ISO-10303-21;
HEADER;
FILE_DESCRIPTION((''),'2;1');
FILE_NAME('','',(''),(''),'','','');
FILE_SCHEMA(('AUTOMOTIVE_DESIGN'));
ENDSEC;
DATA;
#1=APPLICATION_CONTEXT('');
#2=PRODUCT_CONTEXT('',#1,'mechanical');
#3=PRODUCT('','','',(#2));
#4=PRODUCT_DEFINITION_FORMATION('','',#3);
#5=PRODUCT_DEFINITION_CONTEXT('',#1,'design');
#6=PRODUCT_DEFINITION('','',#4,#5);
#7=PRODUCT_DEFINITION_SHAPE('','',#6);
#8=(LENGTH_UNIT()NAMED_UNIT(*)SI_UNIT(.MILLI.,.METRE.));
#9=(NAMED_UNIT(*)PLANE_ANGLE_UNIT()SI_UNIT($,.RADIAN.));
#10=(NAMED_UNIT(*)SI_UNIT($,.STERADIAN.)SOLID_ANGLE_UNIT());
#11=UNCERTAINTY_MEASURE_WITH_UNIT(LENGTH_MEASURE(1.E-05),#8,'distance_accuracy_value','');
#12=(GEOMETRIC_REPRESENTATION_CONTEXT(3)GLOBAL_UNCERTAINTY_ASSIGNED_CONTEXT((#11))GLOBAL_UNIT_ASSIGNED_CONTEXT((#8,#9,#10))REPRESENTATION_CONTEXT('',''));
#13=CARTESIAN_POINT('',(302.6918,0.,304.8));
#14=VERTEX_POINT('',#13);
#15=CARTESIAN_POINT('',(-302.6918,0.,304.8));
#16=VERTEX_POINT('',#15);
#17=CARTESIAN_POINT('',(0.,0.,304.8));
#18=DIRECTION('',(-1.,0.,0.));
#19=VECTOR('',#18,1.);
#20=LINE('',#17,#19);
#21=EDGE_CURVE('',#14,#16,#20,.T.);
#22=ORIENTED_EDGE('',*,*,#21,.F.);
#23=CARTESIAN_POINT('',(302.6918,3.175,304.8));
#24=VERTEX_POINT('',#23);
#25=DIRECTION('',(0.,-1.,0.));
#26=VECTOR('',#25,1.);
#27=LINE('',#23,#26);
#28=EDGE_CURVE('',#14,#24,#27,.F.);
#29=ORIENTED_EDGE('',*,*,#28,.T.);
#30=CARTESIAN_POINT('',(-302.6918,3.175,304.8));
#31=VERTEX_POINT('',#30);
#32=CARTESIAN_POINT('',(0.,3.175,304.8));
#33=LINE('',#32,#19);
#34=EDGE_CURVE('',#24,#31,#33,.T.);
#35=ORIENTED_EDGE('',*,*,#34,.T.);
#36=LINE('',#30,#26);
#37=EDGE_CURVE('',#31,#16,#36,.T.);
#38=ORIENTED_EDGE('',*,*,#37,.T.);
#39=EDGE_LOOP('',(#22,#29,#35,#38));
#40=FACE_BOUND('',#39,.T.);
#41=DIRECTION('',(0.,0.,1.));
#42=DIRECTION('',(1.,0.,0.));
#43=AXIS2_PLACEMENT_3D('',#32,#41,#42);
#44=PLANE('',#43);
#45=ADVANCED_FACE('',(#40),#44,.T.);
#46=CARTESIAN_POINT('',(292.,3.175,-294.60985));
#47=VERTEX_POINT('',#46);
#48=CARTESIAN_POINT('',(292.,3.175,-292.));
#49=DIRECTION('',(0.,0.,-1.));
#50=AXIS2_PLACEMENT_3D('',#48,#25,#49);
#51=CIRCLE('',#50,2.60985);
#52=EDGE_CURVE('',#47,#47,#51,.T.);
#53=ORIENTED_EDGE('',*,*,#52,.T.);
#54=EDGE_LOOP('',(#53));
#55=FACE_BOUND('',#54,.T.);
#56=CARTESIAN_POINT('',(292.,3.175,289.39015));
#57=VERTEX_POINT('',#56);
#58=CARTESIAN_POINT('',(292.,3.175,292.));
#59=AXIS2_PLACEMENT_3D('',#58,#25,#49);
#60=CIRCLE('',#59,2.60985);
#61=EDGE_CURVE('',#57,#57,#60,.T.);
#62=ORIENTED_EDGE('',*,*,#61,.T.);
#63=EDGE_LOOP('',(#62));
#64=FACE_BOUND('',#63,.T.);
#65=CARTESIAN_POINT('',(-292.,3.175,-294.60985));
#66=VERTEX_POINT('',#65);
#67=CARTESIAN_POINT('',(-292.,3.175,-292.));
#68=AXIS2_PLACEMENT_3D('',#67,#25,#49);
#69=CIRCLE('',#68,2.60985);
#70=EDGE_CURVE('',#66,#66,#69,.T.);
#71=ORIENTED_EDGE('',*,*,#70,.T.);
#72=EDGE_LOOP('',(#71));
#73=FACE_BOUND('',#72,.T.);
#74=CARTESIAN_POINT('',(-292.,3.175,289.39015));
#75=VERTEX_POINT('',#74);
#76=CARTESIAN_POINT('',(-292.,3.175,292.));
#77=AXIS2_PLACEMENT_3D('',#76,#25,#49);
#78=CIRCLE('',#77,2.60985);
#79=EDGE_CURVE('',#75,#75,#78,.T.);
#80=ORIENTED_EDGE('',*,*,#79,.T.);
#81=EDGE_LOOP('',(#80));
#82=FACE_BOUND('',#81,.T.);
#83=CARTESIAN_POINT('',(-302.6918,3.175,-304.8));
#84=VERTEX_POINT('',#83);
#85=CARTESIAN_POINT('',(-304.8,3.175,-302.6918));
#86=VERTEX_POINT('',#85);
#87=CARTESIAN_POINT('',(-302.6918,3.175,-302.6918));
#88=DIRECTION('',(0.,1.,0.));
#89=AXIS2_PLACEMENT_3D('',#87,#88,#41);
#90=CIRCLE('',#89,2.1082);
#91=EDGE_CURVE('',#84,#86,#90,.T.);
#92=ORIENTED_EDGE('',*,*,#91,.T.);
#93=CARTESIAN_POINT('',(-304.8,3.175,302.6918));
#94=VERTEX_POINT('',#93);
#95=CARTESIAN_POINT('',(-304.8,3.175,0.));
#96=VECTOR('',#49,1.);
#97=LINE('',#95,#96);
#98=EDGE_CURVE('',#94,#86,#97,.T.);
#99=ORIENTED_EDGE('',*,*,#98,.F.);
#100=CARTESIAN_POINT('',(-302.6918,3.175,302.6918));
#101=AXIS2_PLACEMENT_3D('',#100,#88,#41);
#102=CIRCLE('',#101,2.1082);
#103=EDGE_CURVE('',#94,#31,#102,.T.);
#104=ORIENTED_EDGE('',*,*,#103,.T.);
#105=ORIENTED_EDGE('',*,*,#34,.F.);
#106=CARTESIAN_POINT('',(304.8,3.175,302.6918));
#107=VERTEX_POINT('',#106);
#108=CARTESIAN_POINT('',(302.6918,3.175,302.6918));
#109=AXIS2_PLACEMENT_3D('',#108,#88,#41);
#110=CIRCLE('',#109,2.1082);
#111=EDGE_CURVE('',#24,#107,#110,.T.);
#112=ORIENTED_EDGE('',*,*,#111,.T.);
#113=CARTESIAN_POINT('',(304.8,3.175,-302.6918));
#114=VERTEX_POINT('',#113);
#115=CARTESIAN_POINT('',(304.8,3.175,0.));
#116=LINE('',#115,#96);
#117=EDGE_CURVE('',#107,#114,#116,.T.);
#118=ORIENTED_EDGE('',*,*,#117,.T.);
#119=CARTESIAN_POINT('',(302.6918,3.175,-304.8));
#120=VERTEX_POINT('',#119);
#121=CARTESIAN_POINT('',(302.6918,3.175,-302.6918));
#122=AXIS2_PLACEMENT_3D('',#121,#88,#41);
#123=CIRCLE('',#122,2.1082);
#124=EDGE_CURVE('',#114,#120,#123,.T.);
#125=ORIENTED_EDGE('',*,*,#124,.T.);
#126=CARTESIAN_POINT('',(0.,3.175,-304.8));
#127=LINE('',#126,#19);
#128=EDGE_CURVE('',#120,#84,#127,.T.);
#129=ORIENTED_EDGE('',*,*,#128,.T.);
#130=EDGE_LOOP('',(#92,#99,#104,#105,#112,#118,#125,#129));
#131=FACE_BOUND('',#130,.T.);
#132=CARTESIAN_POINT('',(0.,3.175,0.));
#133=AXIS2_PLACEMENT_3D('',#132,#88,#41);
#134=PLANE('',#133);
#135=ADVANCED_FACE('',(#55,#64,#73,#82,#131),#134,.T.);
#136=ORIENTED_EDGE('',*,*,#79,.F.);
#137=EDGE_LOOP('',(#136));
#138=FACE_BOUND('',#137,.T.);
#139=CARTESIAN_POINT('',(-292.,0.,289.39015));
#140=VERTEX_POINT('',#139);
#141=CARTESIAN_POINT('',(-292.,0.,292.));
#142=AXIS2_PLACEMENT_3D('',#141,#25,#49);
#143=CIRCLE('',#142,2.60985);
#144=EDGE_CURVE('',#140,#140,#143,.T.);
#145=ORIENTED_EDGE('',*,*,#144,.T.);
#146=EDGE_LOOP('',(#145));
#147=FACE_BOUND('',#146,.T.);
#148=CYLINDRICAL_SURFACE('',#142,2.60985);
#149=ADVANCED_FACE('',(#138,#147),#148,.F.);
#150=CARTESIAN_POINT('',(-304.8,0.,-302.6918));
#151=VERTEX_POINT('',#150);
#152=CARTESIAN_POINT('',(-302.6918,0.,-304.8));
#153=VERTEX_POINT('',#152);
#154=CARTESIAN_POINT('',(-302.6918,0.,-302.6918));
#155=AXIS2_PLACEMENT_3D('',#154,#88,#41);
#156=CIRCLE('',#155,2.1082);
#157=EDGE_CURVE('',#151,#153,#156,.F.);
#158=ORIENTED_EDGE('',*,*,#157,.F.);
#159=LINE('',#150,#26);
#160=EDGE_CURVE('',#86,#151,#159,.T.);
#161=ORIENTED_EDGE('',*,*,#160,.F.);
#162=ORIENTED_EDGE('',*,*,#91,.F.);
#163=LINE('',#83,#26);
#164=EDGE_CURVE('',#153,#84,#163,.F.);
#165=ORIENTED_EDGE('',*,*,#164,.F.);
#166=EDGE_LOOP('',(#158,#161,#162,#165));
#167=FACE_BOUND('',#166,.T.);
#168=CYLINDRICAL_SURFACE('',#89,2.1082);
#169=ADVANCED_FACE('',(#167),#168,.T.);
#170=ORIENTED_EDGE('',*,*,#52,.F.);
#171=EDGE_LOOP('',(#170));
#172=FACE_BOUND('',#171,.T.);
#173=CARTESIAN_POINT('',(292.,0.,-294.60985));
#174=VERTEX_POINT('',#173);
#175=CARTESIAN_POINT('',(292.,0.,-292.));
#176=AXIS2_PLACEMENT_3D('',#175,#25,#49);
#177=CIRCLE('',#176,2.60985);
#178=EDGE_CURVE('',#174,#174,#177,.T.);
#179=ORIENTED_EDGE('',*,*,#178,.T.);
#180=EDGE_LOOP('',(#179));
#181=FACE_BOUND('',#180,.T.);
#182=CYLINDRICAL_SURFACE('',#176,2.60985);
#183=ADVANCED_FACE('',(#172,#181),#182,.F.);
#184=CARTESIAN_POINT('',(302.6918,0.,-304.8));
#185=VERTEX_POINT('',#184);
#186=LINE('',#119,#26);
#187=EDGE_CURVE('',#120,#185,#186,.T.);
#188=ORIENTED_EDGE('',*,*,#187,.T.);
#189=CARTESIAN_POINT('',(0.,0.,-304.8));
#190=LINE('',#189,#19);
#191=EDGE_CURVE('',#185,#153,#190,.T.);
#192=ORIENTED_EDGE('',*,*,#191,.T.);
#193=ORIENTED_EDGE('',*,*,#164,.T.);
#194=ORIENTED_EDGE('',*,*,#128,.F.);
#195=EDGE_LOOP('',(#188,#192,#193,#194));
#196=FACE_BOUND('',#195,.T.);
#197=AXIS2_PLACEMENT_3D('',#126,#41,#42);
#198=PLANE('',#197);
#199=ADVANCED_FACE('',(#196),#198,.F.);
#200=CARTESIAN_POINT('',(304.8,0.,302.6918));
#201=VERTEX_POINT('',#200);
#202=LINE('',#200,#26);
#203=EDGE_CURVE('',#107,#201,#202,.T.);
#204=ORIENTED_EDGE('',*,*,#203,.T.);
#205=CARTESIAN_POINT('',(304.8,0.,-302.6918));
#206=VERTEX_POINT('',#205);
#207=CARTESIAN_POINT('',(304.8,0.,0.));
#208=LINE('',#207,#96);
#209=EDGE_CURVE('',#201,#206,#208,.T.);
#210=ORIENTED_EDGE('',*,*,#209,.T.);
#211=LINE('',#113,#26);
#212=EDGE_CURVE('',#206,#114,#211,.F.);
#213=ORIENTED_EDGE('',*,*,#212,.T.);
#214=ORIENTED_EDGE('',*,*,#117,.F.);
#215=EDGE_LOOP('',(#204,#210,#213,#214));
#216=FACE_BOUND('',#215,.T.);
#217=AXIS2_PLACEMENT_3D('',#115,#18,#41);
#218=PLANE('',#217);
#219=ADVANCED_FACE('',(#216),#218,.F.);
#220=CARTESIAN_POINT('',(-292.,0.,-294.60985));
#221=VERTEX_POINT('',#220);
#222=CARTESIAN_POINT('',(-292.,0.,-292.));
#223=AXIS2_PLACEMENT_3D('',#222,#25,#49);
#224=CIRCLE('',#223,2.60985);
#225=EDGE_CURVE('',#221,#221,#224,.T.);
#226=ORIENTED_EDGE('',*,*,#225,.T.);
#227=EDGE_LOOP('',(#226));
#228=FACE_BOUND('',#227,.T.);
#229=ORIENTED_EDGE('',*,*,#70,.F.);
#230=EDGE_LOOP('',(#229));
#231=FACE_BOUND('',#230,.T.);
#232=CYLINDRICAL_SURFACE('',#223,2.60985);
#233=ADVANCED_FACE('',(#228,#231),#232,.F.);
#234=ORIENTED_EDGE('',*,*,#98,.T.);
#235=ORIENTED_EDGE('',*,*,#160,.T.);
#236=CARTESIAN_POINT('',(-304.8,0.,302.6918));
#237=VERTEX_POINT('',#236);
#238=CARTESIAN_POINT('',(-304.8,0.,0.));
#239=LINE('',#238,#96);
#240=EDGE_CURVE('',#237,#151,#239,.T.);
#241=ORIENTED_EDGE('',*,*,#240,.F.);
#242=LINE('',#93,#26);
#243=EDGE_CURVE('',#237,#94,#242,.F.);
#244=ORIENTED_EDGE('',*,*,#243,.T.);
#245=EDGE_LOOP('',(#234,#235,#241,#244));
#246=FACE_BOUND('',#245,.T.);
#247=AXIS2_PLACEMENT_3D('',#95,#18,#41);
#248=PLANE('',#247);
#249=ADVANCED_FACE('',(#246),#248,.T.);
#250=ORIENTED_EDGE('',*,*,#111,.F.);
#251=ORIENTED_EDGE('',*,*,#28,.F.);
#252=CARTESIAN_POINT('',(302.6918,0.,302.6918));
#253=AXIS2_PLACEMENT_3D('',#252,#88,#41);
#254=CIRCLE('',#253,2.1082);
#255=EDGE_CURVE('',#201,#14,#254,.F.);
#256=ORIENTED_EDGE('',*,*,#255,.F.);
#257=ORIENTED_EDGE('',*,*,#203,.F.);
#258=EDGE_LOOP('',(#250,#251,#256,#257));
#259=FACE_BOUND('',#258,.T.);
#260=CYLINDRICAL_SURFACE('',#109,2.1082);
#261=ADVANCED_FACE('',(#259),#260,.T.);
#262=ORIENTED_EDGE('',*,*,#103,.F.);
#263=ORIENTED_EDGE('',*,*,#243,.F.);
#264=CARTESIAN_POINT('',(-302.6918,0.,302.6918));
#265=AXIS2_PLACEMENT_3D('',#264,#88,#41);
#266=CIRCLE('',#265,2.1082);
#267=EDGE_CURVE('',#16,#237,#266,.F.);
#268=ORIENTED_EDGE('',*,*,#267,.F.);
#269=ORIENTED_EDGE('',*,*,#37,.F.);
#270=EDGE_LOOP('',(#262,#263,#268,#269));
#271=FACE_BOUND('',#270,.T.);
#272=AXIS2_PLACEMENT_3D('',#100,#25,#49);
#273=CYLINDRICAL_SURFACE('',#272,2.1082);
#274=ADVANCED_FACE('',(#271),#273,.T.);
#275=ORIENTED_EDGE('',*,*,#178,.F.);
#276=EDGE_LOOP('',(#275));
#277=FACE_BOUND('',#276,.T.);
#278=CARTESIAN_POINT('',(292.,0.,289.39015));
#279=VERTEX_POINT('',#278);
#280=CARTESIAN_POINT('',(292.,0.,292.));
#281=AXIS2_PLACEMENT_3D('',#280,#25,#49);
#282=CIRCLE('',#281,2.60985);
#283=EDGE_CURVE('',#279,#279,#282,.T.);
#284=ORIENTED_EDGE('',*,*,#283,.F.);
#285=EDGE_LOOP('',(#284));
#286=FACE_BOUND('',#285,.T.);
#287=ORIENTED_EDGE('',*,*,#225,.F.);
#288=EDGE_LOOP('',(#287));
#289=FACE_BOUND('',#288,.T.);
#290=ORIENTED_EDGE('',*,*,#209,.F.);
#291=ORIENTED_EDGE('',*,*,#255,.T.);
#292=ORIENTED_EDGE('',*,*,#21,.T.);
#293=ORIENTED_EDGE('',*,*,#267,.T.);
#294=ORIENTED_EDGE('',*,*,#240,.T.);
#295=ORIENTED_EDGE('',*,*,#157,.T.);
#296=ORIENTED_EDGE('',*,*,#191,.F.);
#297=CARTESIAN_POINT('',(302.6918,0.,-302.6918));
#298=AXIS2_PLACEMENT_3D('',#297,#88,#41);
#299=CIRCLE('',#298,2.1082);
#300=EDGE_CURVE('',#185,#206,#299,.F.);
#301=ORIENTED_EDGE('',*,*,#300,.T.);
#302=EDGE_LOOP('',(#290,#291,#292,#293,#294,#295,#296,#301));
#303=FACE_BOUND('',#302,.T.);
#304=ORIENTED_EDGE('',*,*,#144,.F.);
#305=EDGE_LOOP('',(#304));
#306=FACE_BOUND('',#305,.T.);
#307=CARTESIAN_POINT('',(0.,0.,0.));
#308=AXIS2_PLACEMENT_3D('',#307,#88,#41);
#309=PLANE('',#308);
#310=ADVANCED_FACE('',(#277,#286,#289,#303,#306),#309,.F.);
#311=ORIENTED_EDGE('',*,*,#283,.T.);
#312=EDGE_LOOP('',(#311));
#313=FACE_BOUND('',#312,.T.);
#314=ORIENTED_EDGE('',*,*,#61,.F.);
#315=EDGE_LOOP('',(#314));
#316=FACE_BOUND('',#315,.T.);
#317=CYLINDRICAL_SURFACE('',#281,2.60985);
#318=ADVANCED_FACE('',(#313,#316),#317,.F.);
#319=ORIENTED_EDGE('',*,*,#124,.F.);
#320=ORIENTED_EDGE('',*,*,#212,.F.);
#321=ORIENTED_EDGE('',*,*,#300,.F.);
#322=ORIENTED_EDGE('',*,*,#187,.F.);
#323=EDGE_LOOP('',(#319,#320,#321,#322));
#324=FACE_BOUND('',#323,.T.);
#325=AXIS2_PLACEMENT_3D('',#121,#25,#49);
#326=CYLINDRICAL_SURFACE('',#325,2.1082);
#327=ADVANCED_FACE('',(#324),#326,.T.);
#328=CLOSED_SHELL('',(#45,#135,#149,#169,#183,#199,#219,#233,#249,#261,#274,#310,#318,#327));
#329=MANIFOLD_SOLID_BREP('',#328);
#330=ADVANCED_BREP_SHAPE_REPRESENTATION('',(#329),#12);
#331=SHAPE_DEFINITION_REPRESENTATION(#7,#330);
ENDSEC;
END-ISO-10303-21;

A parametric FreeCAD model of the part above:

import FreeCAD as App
import Part
import Sketcher
Q = App.Units.Quantity


def edges_at(feature, points):
    """Names of the edges that pass closest to the given points."""
    edges = feature.Shape.Edges
    near = lambda p: min(range(len(edges)), key=lambda i: edges[i].distToShape(Part.Vertex(*p))[0])
    return sorted({f"Edge{near(p) + 1}" for p in points})


def add_polygon(sketch, points):
    """Adds a closed chain of lines whose ends are joined by coincident constraints."""
    first, n = sketch.GeometryCount, len(points)
    for a, b in zip(points, points[1:] + points[:1]):
        sketch.addGeometry(Part.LineSegment(App.Vector(*a, 0), App.Vector(*b, 0)), False)
    for i in range(n):
        sketch.addConstraint(Sketcher.Constraint("Coincident", first + i, 2, first + (i + 1) % n, 1))

doc = App.newDocument("Part")
body = doc.addObject("PartDesign::Body", "Body")

sketch1 = body.newObject("Sketcher::SketchObject", "Sketch")
sketch1.AttachmentSupport = (doc.getObject("XZ_Plane"), [""])
sketch1.MapMode = "FlatFace"
add_polygon(sketch1, [(-305, -305), (-305, 305), (305, 305), (305, -305)])
sketch1.addConstraint(Sketcher.Constraint("Vertical", 0))
sketch1.addConstraint(Sketcher.Constraint("Horizontal", 1))
sketch1.addConstraint(Sketcher.Constraint("Vertical", 2))
sketch1.addConstraint(Sketcher.Constraint("Horizontal", 3))
sketch1.addConstraint(Sketcher.Constraint("Symmetric", 0, 2, 2, 2, -1, 1))
sketch1.addConstraint(Sketcher.Constraint("Equal", 3, 0))
sketch1.addConstraint(Sketcher.Constraint("DistanceX", 1, 1, 1, 2, Q("24 in")))
pad1 = body.newObject("PartDesign::Pad", "Pad")
pad1.Profile = sketch1
pad1.Length = Q("0.125 in")
pad1.Reversed = True

sketch2 = body.newObject("Sketcher::SketchObject", "Sketch001")
sketch2.AttachmentSupport = (doc.getObject("XZ_Plane"), [""])
sketch2.MapMode = "FlatFace"
sketch2.addGeometry(Part.Circle(App.Vector(292, -292, 0), App.Vector(0, 0, 1), 2.6), False)
sketch2.addGeometry(Part.Circle(App.Vector(-292, -292, 0), App.Vector(0, 0, 1), 2.6), False)
sketch2.addGeometry(Part.Circle(App.Vector(-292, 292, 0), App.Vector(0, 0, 1), 2.6), False)
sketch2.addGeometry(Part.Circle(App.Vector(292, 292, 0), App.Vector(0, 0, 1), 2.6), False)
sketch2.addConstraint(Sketcher.Constraint("Equal", 0, 1))
sketch2.addConstraint(Sketcher.Constraint("Equal", 1, 2))
sketch2.addConstraint(Sketcher.Constraint("Equal", 2, 3))
sketch2.addConstraint(Sketcher.Constraint("Symmetric", 0, 3, 2, 3, -1, 1))
sketch2.addConstraint(Sketcher.Constraint("Symmetric", 1, 3, 3, 3, -1, 1))
sketch2.addConstraint(Sketcher.Constraint("Symmetric", 0, 3, 1, 3, -2))
sketch2.addConstraint(Sketcher.Constraint("Diameter", 0, Q("0.2055 in")))
sketch2.addConstraint(Sketcher.Constraint("DistanceX", -1, 1, 0, 3, Q("292 mm")))
sketch2.addConstraint(Sketcher.Constraint("DistanceY", 0, 3, -1, 1, Q("292 mm")))
doc.recompute()
hole = body.newObject("PartDesign::Hole", "Hole")
hole.Profile = sketch2
hole.ThreadType = "None"
hole.Diameter = Q("0.2055 in")
hole.DepthType = "ThroughAll"
doc.recompute()

fillet = body.newObject("PartDesign::Fillet", "Fillet")
fillet.Base = (hole, edges_at(hole, [
    (-304.8, 1.587, -304.8),
    (304.8, 1.587, -304.8),
    (304.8, 1.587, 304.8),
    (-304.8, 1.587, 304.8),
]))
fillet.Radius = Q("0.083 in")

doc.recompute()
